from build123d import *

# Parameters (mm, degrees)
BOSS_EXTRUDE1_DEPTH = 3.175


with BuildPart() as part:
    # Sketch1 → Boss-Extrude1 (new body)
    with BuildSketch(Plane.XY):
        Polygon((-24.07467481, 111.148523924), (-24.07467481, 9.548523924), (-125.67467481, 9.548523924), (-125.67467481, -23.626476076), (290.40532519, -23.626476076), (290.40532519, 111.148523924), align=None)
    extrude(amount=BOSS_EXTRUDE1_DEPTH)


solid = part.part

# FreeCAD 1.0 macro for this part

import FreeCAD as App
import Part
import Sketcher

V = App.Vector
Q = App.Units.Quantity

doc = App.newDocument("Part")
params = doc.addObject("Spreadsheet::Sheet", "Params")
for row, (alias, value) in enumerate([
    ("sketch1_width", "4 in"),
    ("pad1_length", "0.125 in"),
], start=1):
    params.set(f"A{row}", alias)
    params.set(f"B{row}", "=" + value)
    params.setAlias(f"B{row}", alias)

body = doc.addObject("PartDesign::Body", "Body")

sketch1 = doc.addObject("Sketcher::SketchObject", "Sketch")
body.addObject(sketch1)
sketch1.AttachmentSupport = (doc.XY_Plane, [""])
sketch1.MapMode = "FlatFace"
sketch1.addGeometry([
    Part.LineSegment(V(-24.074675, 111.148524, 0), V(-24.074675, 9.548524, 0)),
    Part.LineSegment(V(-24.074675, 9.548524, 0), V(-125.674675, 9.548524, 0)),
    Part.LineSegment(V(-125.674675, 9.548524, 0), V(-125.674675, -23.626476, 0)),
    Part.LineSegment(V(-125.674675, -23.626476, 0), V(290.405325, -23.626476, 0)),
    Part.LineSegment(V(290.405325, -23.626476, 0), V(290.405325, 111.148524, 0)),
    Part.LineSegment(V(290.405325, 111.148524, 0), V(-24.074675, 111.148524, 0)),
], False)
sketch1.addConstraint([
    Sketcher.Constraint("Coincident", 0, 2, 1, 1),
    Sketcher.Constraint("Coincident", 1, 2, 2, 1),
    Sketcher.Constraint("Coincident", 2, 2, 3, 1),
    Sketcher.Constraint("Coincident", 3, 2, 4, 1),
    Sketcher.Constraint("Coincident", 4, 2, 5, 1),
    Sketcher.Constraint("Coincident", 5, 2, 0, 1),
    Sketcher.Constraint("Vertical", 0),
    Sketcher.Constraint("Horizontal", 1),
    Sketcher.Constraint("Vertical", 2),
    Sketcher.Constraint("Horizontal", 3),
    Sketcher.Constraint("Vertical", 4),
    Sketcher.Constraint("Horizontal", 5),
    Sketcher.Constraint("Equal", 1, 0),
    Sketcher.Constraint("DistanceX", 1, 2, 1, 1, Q("4 in")),
    Sketcher.Constraint("DistanceX", 3, 1, 3, 2, Q("416.08 mm")),
    Sketcher.Constraint("DistanceY", 2, 2, 2, 1, Q("33.175 mm")),
    Sketcher.Constraint("DistanceX", 0, 2, -1, 1, Q("24.074675 mm")),
    Sketcher.Constraint("DistanceY", -1, 1, 0, 2, Q("9.548524 mm")),
])
sketch1.setExpression("Constraints[13]", "Params.sketch1_width")
pad1 = doc.addObject("PartDesign::Pad", "Pad")
body.addObject(pad1)
pad1.Profile = sketch1
pad1.setExpression("Length", "Params.pad1_length")

doc.recompute()
